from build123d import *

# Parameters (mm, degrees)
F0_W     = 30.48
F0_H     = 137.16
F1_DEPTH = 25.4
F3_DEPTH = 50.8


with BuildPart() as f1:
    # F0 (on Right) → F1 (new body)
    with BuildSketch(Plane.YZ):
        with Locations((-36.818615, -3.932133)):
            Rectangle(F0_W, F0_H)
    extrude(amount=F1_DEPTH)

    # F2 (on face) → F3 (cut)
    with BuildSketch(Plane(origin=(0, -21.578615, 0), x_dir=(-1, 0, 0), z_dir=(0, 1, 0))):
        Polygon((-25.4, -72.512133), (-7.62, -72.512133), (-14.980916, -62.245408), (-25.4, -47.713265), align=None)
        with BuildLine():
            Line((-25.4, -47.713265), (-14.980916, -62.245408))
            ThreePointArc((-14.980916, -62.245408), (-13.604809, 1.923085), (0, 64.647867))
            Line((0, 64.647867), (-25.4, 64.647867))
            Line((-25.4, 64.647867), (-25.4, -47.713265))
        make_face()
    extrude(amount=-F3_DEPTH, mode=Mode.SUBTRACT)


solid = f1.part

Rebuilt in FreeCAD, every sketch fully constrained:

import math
import FreeCAD as App
import Part
import Sketcher

V = App.Vector
Q = App.Units.Quantity

doc = App.newDocument("Part")
params = doc.addObject("Spreadsheet::Sheet", "Params")
for row, (alias, value) in enumerate([
    ("sketch1_width", "1.2 in"),
    ("sketch1_height", "5.4 in"),
    ("pad1_length", "1 in"),
    ("sketch2_width", "1 in"),
    ("sketch2_width2", "0.7 in"),
    ("sketch2_height", "5.4 in"),
    ("pocket1_length", "2 in"),
], start=1):
    params.set(f"A{row}", alias)
    params.set(f"B{row}", "=" + value)
    params.setAlias(f"B{row}", alias)

body = doc.addObject("PartDesign::Body", "Body")

# Sketch on YZ plane
sketch1 = body.newObject("Sketcher::SketchObject", "Sketch")
sketch1.AttachmentSupport = (doc.getObject("YZ_Plane"), [""])
sketch1.MapMode = "FlatFace"
sketch1.addGeometry([
    Part.LineSegment(V(-52, 65, 0), V(-52, -73, 0)),
    Part.LineSegment(V(-52, -73, 0), V(-22, -73, 0)),
    Part.LineSegment(V(-22, -73, 0), V(-22, 65, 0)),
    Part.LineSegment(V(-22, 65, 0), V(-52, 65, 0)),
], False)
sketch1.addConstraint([
    Sketcher.Constraint("Coincident", 0, 2, 1, 1),
    Sketcher.Constraint("Coincident", 1, 2, 2, 1),
    Sketcher.Constraint("Coincident", 2, 2, 3, 1),
    Sketcher.Constraint("Coincident", 3, 2, 0, 1),
    Sketcher.Constraint("Vertical", 0),
    Sketcher.Constraint("Horizontal", 1),
    Sketcher.Constraint("Vertical", 2),
    Sketcher.Constraint("Horizontal", 3),
    Sketcher.Constraint("DistanceX", 1, 1, 1, 2, Q("1.2 in")),
    Sketcher.Constraint("DistanceY", 0, 2, 0, 1, Q("5.4 in")),
    Sketcher.Constraint("DistanceX", 0, 2, -1, 1, 52.058615),
    Sketcher.Constraint("DistanceY", 0, 2, -1, 1, 72.512133),
])
sketch1.setExpression("Constraints[8]", "Params.sketch1_width")
sketch1.setExpression("Constraints[9]", "Params.sketch1_height")
pad1 = body.newObject("PartDesign::Pad", "Pad")
pad1.Profile = sketch1
pad1.setExpression("Length", "Params.pad1_length")

# Sketch on XZ plane
sketch2 = body.newObject("Sketcher::SketchObject", "Sketch001")
sketch2.AttachmentSupport = (doc.getObject("XZ_Plane"), [""])
sketch2.MapMode = "FlatFace"
sketch2.AttachmentOffset = App.Placement(V(0, 0, 21.578615), App.Rotation())
sketch2.addGeometry([
    Part.LineSegment(V(25, -73, 0), V(8, -73, 0)),  # 0
    Part.LineSegment(V(8, -73, 0), V(15, -62, 0)),  # 1
    Part.ArcOfCircle(Part.Circle(V(-319, -37, 0), V(0, 0, 1), 335), math.radians(-4), math.radians(18)),  # 2
    Part.LineSegment(V(0, 65, 0), V(25, 65, 0)),  # 3
    Part.LineSegment(V(25, 65, 0), V(25, -73, 0)),  # 4
], False)
sketch2.addConstraint([
    Sketcher.Constraint("Coincident", 0, 2, 1, 1),
    Sketcher.Constraint("Coincident", 1, 2, 2, 1),
    Sketcher.Constraint("Coincident", 2, 2, 3, 1),
    Sketcher.Constraint("Coincident", 3, 2, 4, 1),
    Sketcher.Constraint("Coincident", 4, 2, 0, 1),
    Sketcher.Constraint("Horizontal", 0),
    Sketcher.Constraint("Horizontal", 3),
    Sketcher.Constraint("Vertical", 4),
    Sketcher.Constraint("PointOnObject", 2, 2, -2),
    Sketcher.Constraint("DistanceX", 3, 1, 3, 2, Q("1 in")),
    Sketcher.Constraint("DistanceX", 0, 2, 0, 1, Q("0.7 in")),
    Sketcher.Constraint("DistanceY", 4, 2, 4, 1, Q("5.4 in")),
    Sketcher.Constraint("DistanceX", -1, 1, 1, 2, Q("0.5897998 in")),
    Sketcher.Constraint("Radius", 2, 334.547127),
    Sketcher.Constraint("DistanceY", 2, 3, -1, 1, 37.300869),
    Sketcher.Constraint("DistanceY", 1, 2, 2, 3, 24.944539),
])
sketch2.setExpression("Constraints[9]", "Params.sketch2_width")
sketch2.setExpression("Constraints[10]", "Params.sketch2_width2")
sketch2.setExpression("Constraints[11]", "Params.sketch2_height")
pocket1 = body.newObject("PartDesign::Pocket", "Pocket")
pocket1.Profile = sketch2
pocket1.setExpression("Length", "Params.pocket1_length")
pocket1.Reversed = True

doc.recompute()
